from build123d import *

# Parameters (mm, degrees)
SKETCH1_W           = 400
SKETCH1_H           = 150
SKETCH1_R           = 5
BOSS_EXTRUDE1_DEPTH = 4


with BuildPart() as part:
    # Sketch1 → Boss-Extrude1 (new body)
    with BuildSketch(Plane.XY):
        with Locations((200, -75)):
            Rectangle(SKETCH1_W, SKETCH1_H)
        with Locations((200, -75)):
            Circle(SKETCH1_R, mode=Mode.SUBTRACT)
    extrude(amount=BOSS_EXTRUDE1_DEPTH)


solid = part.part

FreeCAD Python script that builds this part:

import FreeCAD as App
import Part
import Sketcher

V = App.Vector
Q = App.Units.Quantity

doc = App.newDocument("Part")
params = doc.addObject("Spreadsheet::Sheet", "Params")
for row, (alias, value) in enumerate([
    ("sketch1_diameter", "10 mm"),
    ("sketch1_width", "400 mm"),
    ("sketch1_height", "150 mm"),
    ("pad1_length", "4 mm"),
], start=1):
    params.set(f"A{row}", alias)
    params.set(f"B{row}", "=" + value)
    params.setAlias(f"B{row}", alias)

body = doc.addObject("PartDesign::Body", "Body")

# Sketch on XY plane
sketch1 = body.newObject("Sketcher::SketchObject", "Sketch")
sketch1.AttachmentSupport = (doc.getObject("XY_Plane"), [""])
sketch1.MapMode = "FlatFace"
sketch1.addGeometry([
    Part.LineSegment(V(0, 0, 0), V(0, -150, 0)),  # 0
    Part.LineSegment(V(0, -150, 0), V(400, -150, 0)),  # 1
    Part.LineSegment(V(400, -150, 0), V(400, 0, 0)),  # 2
    Part.LineSegment(V(400, 0, 0), V(0, 0, 0)),  # 3
    Part.Circle(V(200, -75, 0), V(0, 0, 1), 5),  # 4
], False)
sketch1.addConstraint([
    Sketcher.Constraint("Coincident", 0, 2, 1, 1),
    Sketcher.Constraint("Coincident", 1, 2, 2, 1),
    Sketcher.Constraint("Coincident", 2, 2, 3, 1),
    Sketcher.Constraint("Coincident", 3, 2, 0, 1),
    Sketcher.Constraint("Vertical", 0),
    Sketcher.Constraint("Horizontal", 1),
    Sketcher.Constraint("Vertical", 2),
    Sketcher.Constraint("Horizontal", 3),
    Sketcher.Constraint("Coincident", 3, 2, -1, 1),
    Sketcher.Constraint("Diameter", 4, Q("10 mm")),
    Sketcher.Constraint("DistanceX", 1, 1, 1, 2, Q("400 mm")),
    Sketcher.Constraint("DistanceY", 0, 2, 0, 1, Q("150 mm")),
    Sketcher.Constraint("DistanceX", -1, 1, 4, 3, Q("200 mm")),
    Sketcher.Constraint("DistanceY", 4, 3, -1, 1, Q("75 mm")),
])
sketch1.setExpression("Constraints[9]", "Params.sketch1_diameter")
sketch1.setExpression("Constraints[10]", "Params.sketch1_width")
sketch1.setExpression("Constraints[11]", "Params.sketch1_height")
pad1 = body.newObject("PartDesign::Pad", "Pad")
pad1.Profile = sketch1
pad1.setExpression("Length", "Params.pad1_length")

doc.recompute()
